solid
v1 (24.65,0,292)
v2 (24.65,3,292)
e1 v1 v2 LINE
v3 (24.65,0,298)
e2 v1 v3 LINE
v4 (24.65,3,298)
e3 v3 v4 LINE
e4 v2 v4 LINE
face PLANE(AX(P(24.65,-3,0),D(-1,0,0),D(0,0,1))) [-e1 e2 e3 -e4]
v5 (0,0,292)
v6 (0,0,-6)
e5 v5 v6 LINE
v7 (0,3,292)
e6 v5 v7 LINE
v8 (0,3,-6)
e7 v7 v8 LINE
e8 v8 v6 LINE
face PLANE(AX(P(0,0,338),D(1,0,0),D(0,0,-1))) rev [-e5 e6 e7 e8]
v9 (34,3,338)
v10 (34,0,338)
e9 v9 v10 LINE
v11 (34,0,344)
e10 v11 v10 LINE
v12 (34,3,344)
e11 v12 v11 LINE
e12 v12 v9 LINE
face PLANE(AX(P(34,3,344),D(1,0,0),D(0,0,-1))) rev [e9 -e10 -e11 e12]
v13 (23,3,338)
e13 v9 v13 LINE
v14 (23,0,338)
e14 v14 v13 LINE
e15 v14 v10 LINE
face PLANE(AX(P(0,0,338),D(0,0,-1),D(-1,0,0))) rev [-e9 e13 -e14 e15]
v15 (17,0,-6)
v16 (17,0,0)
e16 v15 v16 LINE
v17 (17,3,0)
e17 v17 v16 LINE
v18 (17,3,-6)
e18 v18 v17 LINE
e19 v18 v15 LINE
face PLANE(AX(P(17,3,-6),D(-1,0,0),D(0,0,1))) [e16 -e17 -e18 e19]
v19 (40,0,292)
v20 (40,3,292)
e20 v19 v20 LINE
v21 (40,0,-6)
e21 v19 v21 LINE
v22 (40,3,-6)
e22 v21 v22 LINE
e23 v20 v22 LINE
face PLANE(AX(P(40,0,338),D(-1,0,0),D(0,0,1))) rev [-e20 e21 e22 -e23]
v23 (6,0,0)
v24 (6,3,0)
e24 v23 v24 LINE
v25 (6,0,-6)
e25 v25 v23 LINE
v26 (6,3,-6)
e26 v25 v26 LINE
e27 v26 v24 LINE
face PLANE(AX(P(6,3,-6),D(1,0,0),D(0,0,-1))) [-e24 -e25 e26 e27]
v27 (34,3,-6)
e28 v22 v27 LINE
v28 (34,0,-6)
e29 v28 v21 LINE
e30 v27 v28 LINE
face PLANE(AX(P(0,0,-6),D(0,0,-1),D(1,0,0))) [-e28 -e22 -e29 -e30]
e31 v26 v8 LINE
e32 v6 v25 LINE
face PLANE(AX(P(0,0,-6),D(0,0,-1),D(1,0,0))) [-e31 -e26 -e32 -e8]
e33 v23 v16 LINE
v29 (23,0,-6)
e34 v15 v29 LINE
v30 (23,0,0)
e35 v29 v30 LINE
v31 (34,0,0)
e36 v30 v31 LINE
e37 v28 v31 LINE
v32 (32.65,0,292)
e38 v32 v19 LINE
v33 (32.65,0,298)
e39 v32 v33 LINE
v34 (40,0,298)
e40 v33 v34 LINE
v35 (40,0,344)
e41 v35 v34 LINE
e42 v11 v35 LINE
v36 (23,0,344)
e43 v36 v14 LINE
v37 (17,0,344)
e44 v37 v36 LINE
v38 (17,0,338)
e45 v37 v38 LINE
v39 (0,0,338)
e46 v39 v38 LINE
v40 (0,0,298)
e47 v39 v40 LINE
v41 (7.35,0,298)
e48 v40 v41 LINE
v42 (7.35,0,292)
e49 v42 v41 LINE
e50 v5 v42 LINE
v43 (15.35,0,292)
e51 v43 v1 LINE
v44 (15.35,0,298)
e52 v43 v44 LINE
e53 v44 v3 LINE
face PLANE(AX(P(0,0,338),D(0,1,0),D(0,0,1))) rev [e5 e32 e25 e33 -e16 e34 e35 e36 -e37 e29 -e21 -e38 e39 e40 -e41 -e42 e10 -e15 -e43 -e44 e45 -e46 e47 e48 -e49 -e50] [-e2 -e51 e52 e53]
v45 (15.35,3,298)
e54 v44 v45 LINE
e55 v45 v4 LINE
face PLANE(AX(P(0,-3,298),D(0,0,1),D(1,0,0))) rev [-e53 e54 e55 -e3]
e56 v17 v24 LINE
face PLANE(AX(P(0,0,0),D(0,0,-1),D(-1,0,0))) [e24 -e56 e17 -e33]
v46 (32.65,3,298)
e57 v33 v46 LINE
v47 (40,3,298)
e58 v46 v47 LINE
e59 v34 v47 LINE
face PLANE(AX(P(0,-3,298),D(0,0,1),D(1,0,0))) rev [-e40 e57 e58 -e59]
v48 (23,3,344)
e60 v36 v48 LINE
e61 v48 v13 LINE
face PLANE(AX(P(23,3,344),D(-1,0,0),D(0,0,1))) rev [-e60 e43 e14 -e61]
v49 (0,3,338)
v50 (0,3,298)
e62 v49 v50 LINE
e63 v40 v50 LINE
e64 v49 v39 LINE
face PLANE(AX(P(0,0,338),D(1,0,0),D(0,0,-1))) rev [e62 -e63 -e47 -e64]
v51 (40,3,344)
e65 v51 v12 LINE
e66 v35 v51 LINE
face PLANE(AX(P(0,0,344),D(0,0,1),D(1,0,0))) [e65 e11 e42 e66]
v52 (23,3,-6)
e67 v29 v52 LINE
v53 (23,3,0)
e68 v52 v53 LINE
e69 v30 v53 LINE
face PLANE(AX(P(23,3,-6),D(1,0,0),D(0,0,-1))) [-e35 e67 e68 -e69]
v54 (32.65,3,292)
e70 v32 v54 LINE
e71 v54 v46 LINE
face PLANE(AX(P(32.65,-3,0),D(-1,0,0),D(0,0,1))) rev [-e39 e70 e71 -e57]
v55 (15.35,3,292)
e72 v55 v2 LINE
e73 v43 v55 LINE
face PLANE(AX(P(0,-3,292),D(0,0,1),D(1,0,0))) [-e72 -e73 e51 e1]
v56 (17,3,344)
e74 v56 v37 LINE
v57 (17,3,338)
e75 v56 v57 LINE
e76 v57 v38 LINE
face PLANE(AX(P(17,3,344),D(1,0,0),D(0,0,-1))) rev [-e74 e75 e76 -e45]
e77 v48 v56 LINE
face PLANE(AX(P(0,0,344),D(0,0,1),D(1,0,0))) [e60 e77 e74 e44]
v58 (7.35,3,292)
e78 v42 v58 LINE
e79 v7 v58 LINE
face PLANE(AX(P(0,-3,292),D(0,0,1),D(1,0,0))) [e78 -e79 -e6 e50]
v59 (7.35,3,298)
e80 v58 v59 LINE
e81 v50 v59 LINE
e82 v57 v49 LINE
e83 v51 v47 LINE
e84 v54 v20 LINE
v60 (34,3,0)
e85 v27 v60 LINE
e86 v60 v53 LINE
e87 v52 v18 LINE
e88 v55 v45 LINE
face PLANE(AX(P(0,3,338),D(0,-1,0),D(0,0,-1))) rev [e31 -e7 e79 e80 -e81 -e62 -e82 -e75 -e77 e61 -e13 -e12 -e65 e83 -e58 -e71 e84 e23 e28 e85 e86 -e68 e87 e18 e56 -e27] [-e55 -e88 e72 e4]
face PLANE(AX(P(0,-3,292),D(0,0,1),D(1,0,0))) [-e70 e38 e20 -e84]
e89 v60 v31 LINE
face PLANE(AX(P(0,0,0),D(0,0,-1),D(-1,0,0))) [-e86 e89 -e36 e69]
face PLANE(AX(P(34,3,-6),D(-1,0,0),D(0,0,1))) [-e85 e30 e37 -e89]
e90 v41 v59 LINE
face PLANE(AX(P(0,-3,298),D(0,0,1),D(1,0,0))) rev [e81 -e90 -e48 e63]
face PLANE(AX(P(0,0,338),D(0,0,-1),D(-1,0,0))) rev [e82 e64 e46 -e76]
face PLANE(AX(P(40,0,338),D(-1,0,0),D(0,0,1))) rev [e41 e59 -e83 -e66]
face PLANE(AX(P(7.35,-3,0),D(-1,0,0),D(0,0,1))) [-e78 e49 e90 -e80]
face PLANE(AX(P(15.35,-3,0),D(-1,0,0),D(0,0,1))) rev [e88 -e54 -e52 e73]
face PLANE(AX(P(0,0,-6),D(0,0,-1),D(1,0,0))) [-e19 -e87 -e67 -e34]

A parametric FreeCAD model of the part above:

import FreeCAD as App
import Part
import Sketcher

doc = App.newDocument("Part")
body = doc.addObject("PartDesign::Body", "Body")

# Sketch on XY plane
sketch1 = body.newObject("Sketcher::SketchObject", "Sketch")
sketch1.AttachmentSupport = (doc.getObject("XY_Plane"), [""])
sketch1.MapMode = "FlatFace"
sketch1.addGeometry(Part.LineSegment(App.Vector(0, 3, 0), App.Vector(0, 0, 0)), False)
sketch1.addGeometry(Part.LineSegment(App.Vector(0, 0, 0), App.Vector(40, 0, 0)), False)
sketch1.addGeometry(Part.LineSegment(App.Vector(40, 0, 0), App.Vector(40, 3, 0)), False)
sketch1.addGeometry(Part.LineSegment(App.Vector(40, 3, 0), App.Vector(0, 3, 0)), False)
sketch1.addConstraint(Sketcher.Constraint("Coincident", 0, 2, 1, 1))
sketch1.addConstraint(Sketcher.Constraint("Coincident", 1, 2, 2, 1))
sketch1.addConstraint(Sketcher.Constraint("Coincident", 2, 2, 3, 1))
sketch1.addConstraint(Sketcher.Constraint("Coincident", 3, 2, 0, 1))
sketch1.addConstraint(Sketcher.Constraint("Vertical", 0))
sketch1.addConstraint(Sketcher.Constraint("Horizontal", 1))
sketch1.addConstraint(Sketcher.Constraint("Vertical", 2))
sketch1.addConstraint(Sketcher.Constraint("Horizontal", 3))
sketch1.addConstraint(Sketcher.Constraint("Coincident", 0, 2, -1, 1))
sketch1.addConstraint(Sketcher.Constraint("DistanceX", 1, 1, 1, 2, 40.0))
sketch1.addConstraint(Sketcher.Constraint("DistanceY", 0, 2, 0, 1, 3.0))
pad1 = body.newObject("PartDesign::Pad", "Pad")
pad1.Profile = sketch1
pad1.Length = 338

# Sketch on XZ plane
sketch2 = body.newObject("Sketcher::SketchObject", "Sketch001")
sketch2.AttachmentSupport = (doc.getObject("XZ_Plane"), [""])
sketch2.MapMode = "FlatFace"
sketch2.AttachmentOffset = App.Placement(App.Vector(0, 0, -3), App.Rotation())
sketch2.addGeometry(Part.LineSegment(App.Vector(0, 292, 0), App.Vector(0, 298, 0)), False)
sketch2.addGeometry(Part.LineSegment(App.Vector(0, 298, 0), App.Vector(7.35, 298, 0)), False)
sketch2.addGeometry(Part.LineSegment(App.Vector(7.35, 298, 0), App.Vector(7.35, 292, 0)), False)
sketch2.addGeometry(Part.LineSegment(App.Vector(7.35, 292, 0), App.Vector(0, 292, 0)), False)
sketch2.addGeometry(Part.LineSegment(App.Vector(15.35, 292, 0), App.Vector(15.35, 298, 0)), False)
sketch2.addGeometry(Part.LineSegment(App.Vector(15.35, 298, 0), App.Vector(24.65, 298, 0)), False)
sketch2.addGeometry(Part.LineSegment(App.Vector(24.65, 298, 0), App.Vector(24.65, 292, 0)), False)
sketch2.addGeometry(Part.LineSegment(App.Vector(24.65, 292, 0), App.Vector(15.35, 292, 0)), False)
sketch2.addGeometry(Part.LineSegment(App.Vector(32.65, 292, 0), App.Vector(32.65, 298, 0)), False)
sketch2.addGeometry(Part.LineSegment(App.Vector(32.65, 298, 0), App.Vector(40, 298, 0)), False)
sketch2.addGeometry(Part.LineSegment(App.Vector(40, 298, 0), App.Vector(40, 292, 0)), False)
sketch2.addGeometry(Part.LineSegment(App.Vector(40, 292, 0), App.Vector(32.65, 292, 0)), False)
sketch2.addConstraint(Sketcher.Constraint("Coincident", 0, 2, 1, 1))
sketch2.addConstraint(Sketcher.Constraint("Coincident", 1, 2, 2, 1))
sketch2.addConstraint(Sketcher.Constraint("Coincident", 2, 2, 3, 1))
sketch2.addConstraint(Sketcher.Constraint("Coincident", 3, 2, 0, 1))
sketch2.addConstraint(Sketcher.Constraint("Coincident", 4, 2, 5, 1))
sketch2.addConstraint(Sketcher.Constraint("Coincident", 5, 2, 6, 1))
sketch2.addConstraint(Sketcher.Constraint("Coincident", 6, 2, 7, 1))
sketch2.addConstraint(Sketcher.Constraint("Coincident", 7, 2, 4, 1))
sketch2.addConstraint(Sketcher.Constraint("Coincident", 8, 2, 9, 1))
sketch2.addConstraint(Sketcher.Constraint("Coincident", 9, 2, 10, 1))
sketch2.addConstraint(Sketcher.Constraint("Coincident", 10, 2, 11, 1))
sketch2.addConstraint(Sketcher.Constraint("Coincident", 11, 2, 8, 1))
sketch2.addConstraint(Sketcher.Constraint("Vertical", 0))
sketch2.addConstraint(Sketcher.Constraint("Horizontal", 1))
sketch2.addConstraint(Sketcher.Constraint("Vertical", 2))
sketch2.addConstraint(Sketcher.Constraint("Horizontal", 3))
sketch2.addConstraint(Sketcher.Constraint("Vertical", 4))
sketch2.addConstraint(Sketcher.Constraint("Horizontal", 5))
sketch2.addConstraint(Sketcher.Constraint("Vertical", 6))
sketch2.addConstraint(Sketcher.Constraint("Horizontal", 7))
sketch2.addConstraint(Sketcher.Constraint("Vertical", 8))
sketch2.addConstraint(Sketcher.Constraint("Horizontal", 9))
sketch2.addConstraint(Sketcher.Constraint("Vertical", 10))
sketch2.addConstraint(Sketcher.Constraint("Horizontal", 11))
sketch2.addConstraint(Sketcher.Constraint("PointOnObject", 0, 2, -2))
sketch2.addConstraint(Sketcher.Constraint("Horizontal", 1, 2, 4, 2))
sketch2.addConstraint(Sketcher.Constraint("Horizontal", 3, 2, 6, 2))
sketch2.addConstraint(Sketcher.Constraint("Horizontal", 5, 2, 8, 2))
sketch2.addConstraint(Sketcher.Constraint("Horizontal", 7, 2, 10, 2))
sketch2.addConstraint(Sketcher.Constraint("Equal", 3, 9))
sketch2.addConstraint(Sketcher.Constraint("DistanceY", 0, 1, 0, 2, 6.0))
sketch2.addConstraint(Sketcher.Constraint("DistanceX", 5, 1, 5, 2, 9.3))
sketch2.addConstraint(Sketcher.Constraint("DistanceY", -1, 1, 0, 2, 298.0))
sketch2.addConstraint(Sketcher.Constraint("DistanceX", -1, 1, 9, 2, 40.0))
sketch2.addConstraint(Sketcher.Constraint("DistanceX", 1, 2, 4, 2, 8.0))
sketch2.addConstraint(Sketcher.Constraint("DistanceX", 5, 2, 8, 2, 8.0))
pocket1 = body.newObject("PartDesign::Pocket", "Pocket")
pocket1.Profile = sketch2
pocket1.Length = 6
pocket1.Reversed = True

# Sketch on XY plane
sketch3 = body.newObject("Sketcher::SketchObject", "Sketch002")
sketch3.AttachmentSupport = (doc.getObject("XY_Plane"), [""])
sketch3.MapMode = "FlatFace"
sketch3.AttachmentOffset = App.Placement(App.Vector(0, 0, 338), App.Rotation())
sketch3.addGeometry(Part.LineSegment(App.Vector(0, 3, 0), App.Vector(0, 0, 0)), False)
sketch3.addGeometry(Part.LineSegment(App.Vector(0, 0, 0), App.Vector(6, 0, 0)), False)
sketch3.addGeometry(Part.LineSegment(App.Vector(6, 0, 0), App.Vector(6, 3, 0)), False)
sketch3.addGeometry(Part.LineSegment(App.Vector(6, 3, 0), App.Vector(0, 3, 0)), False)
sketch3.addGeometry(Part.LineSegment(App.Vector(17, 3, 0), App.Vector(17, 0, 0)), False)
sketch3.addGeometry(Part.LineSegment(App.Vector(17, 0, 0), App.Vector(23, 0, 0)), False)
sketch3.addGeometry(Part.LineSegment(App.Vector(23, 0, 0), App.Vector(23, 3, 0)), False)
sketch3.addGeometry(Part.LineSegment(App.Vector(23, 3, 0), App.Vector(17, 3, 0)), False)
sketch3.addGeometry(Part.LineSegment(App.Vector(34, 3, 0), App.Vector(34, 0, 0)), False)
sketch3.addGeometry(Part.LineSegment(App.Vector(34, 0, 0), App.Vector(40, 0, 0)), False)
sketch3.addGeometry(Part.LineSegment(App.Vector(40, 0, 0), App.Vector(40, 3, 0)), False)
sketch3.addGeometry(Part.LineSegment(App.Vector(40, 3, 0), App.Vector(34, 3, 0)), False)
sketch3.addConstraint(Sketcher.Constraint("Coincident", 0, 2, 1, 1))
sketch3.addConstraint(Sketcher.Constraint("Coincident", 1, 2, 2, 1))
sketch3.addConstraint(Sketcher.Constraint("Coincident", 2, 2, 3, 1))
sketch3.addConstraint(Sketcher.Constraint("Coincident", 3, 2, 0, 1))
sketch3.addConstraint(Sketcher.Constraint("Coincident", 4, 2, 5, 1))
sketch3.addConstraint(Sketcher.Constraint("Coincident", 5, 2, 6, 1))
sketch3.addConstraint(Sketcher.Constraint("Coincident", 6, 2, 7, 1))
sketch3.addConstraint(Sketcher.Constraint("Coincident", 7, 2, 4, 1))
sketch3.addConstraint(Sketcher.Constraint("Coincident", 8, 2, 9, 1))
sketch3.addConstraint(Sketcher.Constraint("Coincident", 9, 2, 10, 1))
sketch3.addConstraint(Sketcher.Constraint("Coincident", 10, 2, 11, 1))
sketch3.addConstraint(Sketcher.Constraint("Coincident", 11, 2, 8, 1))
sketch3.addConstraint(Sketcher.Constraint("Vertical", 0))
sketch3.addConstraint(Sketcher.Constraint("Horizontal", 1))
sketch3.addConstraint(Sketcher.Constraint("Vertical", 2))
sketch3.addConstraint(Sketcher.Constraint("Horizontal", 3))
sketch3.addConstraint(Sketcher.Constraint("Vertical", 4))
sketch3.addConstraint(Sketcher.Constraint("Horizontal", 5))
sketch3.addConstraint(Sketcher.Constraint("Vertical", 6))
sketch3.addConstraint(Sketcher.Constraint("Horizontal", 7))
sketch3.addConstraint(Sketcher.Constraint("Vertical", 8))
sketch3.addConstraint(Sketcher.Constraint("Horizontal", 9))
sketch3.addConstraint(Sketcher.Constraint("Vertical", 10))
sketch3.addConstraint(Sketcher.Constraint("Horizontal", 11))
sketch3.addConstraint(Sketcher.Constraint("Coincident", 0, 2, -1, 1))
sketch3.addConstraint(Sketcher.Constraint("PointOnObject", 4, 2, -1))
sketch3.addConstraint(Sketcher.Constraint("PointOnObject", 8, 2, -1))
sketch3.addConstraint(Sketcher.Constraint("Horizontal", 3, 2, 6, 2))
sketch3.addConstraint(Sketcher.Constraint("Horizontal", 7, 2, 10, 2))
sketch3.addConstraint(Sketcher.Constraint("Equal", 3, 5))
sketch3.addConstraint(Sketcher.Constraint("Equal", 7, 9))
sketch3.addConstraint(Sketcher.Constraint("DistanceX", 1, 1, 1, 2, 6.0))
sketch3.addConstraint(Sketcher.Constraint("DistanceY", 0, 2, 0, 1, 3.0))
sketch3.addConstraint(Sketcher.Constraint("DistanceX", -1, 1, 4, 2, 17.0))
sketch3.addConstraint(Sketcher.Constraint("DistanceX", -1, 1, 8, 2, 34.0))
pad2 = body.newObject("PartDesign::Pad", "Pad001")
pad2.Profile = sketch3
pad2.Length = 6
doc.recompute()

datumplane = body.newObject("PartDesign::Plane", "DatumPlane")
datumplane.AttachmentSupport = (doc.getObject("XY_Plane"), [""])
datumplane.MapMode = "FlatFace"
datumplane.AttachmentOffset = App.Placement(App.Vector(0, 0, 169), App.Rotation())
mirrored = body.newObject("PartDesign::Mirrored", "Mirrored")
mirrored.Originals = [pad2]
mirrored.MirrorPlane = (datumplane, [""])
body.Tip = mirrored

# Sketch on XZ plane
sketch4 = body.newObject("Sketcher::SketchObject", "Sketch003")
sketch4.AttachmentSupport = (doc.getObject("XZ_Plane"), [""])
sketch4.MapMode = "FlatFace"
sketch4.addGeometry(Part.LineSegment(App.Vector(0, 344, 0), App.Vector(0, 338, 0)), False)
sketch4.addGeometry(Part.LineSegment(App.Vector(0, 338, 0), App.Vector(6, 338, 0)), False)
sketch4.addGeometry(Part.LineSegment(App.Vector(6, 338, 0), App.Vector(6, 344, 0)), False)
sketch4.addGeometry(Part.LineSegment(App.Vector(6, 344, 0), App.Vector(0, 344, 0)), False)
sketch4.addConstraint(Sketcher.Constraint("Coincident", 0, 2, 1, 1))
sketch4.addConstraint(Sketcher.Constraint("Coincident", 1, 2, 2, 1))
sketch4.addConstraint(Sketcher.Constraint("Coincident", 2, 2, 3, 1))
sketch4.addConstraint(Sketcher.Constraint("Coincident", 3, 2, 0, 1))
sketch4.addConstraint(Sketcher.Constraint("Vertical", 0))
sketch4.addConstraint(Sketcher.Constraint("Horizontal", 1))
sketch4.addConstraint(Sketcher.Constraint("Vertical", 2))
sketch4.addConstraint(Sketcher.Constraint("Horizontal", 3))
sketch4.addConstraint(Sketcher.Constraint("PointOnObject", 0, 2, -2))
sketch4.addConstraint(Sketcher.Constraint("Equal", 3, 0))
sketch4.addConstraint(Sketcher.Constraint("DistanceX", 1, 1, 1, 2, 6.0))
sketch4.addConstraint(Sketcher.Constraint("DistanceY", -1, 1, 0, 2, 338.0))
pocket2 = body.newObject("PartDesign::Pocket", "Pocket001")
pocket2.Profile = sketch4
pocket2.Length = 6

doc.recompute()
